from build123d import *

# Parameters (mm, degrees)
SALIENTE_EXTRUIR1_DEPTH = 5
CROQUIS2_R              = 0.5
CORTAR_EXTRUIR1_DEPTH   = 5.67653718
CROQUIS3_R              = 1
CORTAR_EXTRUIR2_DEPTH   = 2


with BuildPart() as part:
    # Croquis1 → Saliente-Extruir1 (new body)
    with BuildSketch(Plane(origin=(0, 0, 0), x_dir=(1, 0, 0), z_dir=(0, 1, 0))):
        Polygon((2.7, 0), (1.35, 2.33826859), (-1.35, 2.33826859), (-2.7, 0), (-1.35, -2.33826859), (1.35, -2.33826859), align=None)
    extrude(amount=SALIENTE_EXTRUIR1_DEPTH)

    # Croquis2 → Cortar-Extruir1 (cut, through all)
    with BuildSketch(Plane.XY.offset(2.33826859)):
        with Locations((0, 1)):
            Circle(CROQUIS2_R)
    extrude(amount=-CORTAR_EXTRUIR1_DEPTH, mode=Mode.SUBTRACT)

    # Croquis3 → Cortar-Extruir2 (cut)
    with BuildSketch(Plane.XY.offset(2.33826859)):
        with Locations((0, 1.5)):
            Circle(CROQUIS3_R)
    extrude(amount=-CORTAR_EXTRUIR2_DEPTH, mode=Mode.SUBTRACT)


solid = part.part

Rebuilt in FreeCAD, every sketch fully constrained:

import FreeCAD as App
import Part
import Sketcher
from FreeCAD import Vector
Q = App.Units.Quantity


def add_polygon(sketch, points):
    """Adds a closed chain of lines whose ends are joined by coincident constraints."""
    first, n = sketch.GeometryCount, len(points)
    for a, b in zip(points, points[1:] + points[:1]):
        sketch.addGeometry(Part.LineSegment(App.Vector(*a, 0), App.Vector(*b, 0)), False)
    for i in range(n):
        sketch.addConstraint(Sketcher.Constraint("Coincident", first + i, 2, first + (i + 1) % n, 1))

doc = App.newDocument("Part")
params = doc.addObject("Spreadsheet::Sheet", "Params")
for row, (alias, value) in enumerate([
    ("sketch1_width", "2.7 mm"),
    ("sketch1_length", "2.7 mm"),
    ("pad1_length", "5 mm"),
    ("sketch2_diameter", "1 mm"),
    ("sketch3_diameter", "2 mm"),
    ("pocket2_length", "2 mm"),
], start=1):
    params.set(f"A{row}", alias)
    params.set(f"B{row}", "=" + value)
    params.setAlias(f"B{row}", alias)

body = doc.addObject("PartDesign::Body", "Body")

sketch1 = body.newObject("Sketcher::SketchObject", "Sketch")
sketch1.AttachmentSupport = (doc.getObject("XZ_Plane"), [""])
sketch1.MapMode = "FlatFace"
add_polygon(sketch1, [(2.7, 0), (1.4, -2.3), (-1.4, -2.3), (-2.7, 0), (-1.4, 2.3), (1.4, 2.3)])
sketch1.addConstraint(Sketcher.Constraint("Horizontal", 1))
sketch1.addConstraint(Sketcher.Constraint("Horizontal", 4))
sketch1.addConstraint(Sketcher.Constraint("Symmetric", 0, 2, 3, 2, -1, 1))
sketch1.addConstraint(Sketcher.Constraint("Symmetric", 2, 2, 5, 2, -1, 1))
sketch1.addConstraint(Sketcher.Constraint("PointOnObject", 2, 2, -1))
sketch1.addConstraint(Sketcher.Constraint("Parallel", 2, 5))
sketch1.addConstraint(Sketcher.Constraint("Vertical", 1, 2, 3, 2))
sketch1.addConstraint(Sketcher.Constraint("Angle", 0, Q("-120 deg")))
sketch1.addConstraint(Sketcher.Constraint("DistanceX", 1, 2, 1, 1, Q("2.7 mm")))
sketch1.addConstraint(Sketcher.Constraint("Distance", 0, Q("2.7 mm")))
sketch1.setExpression("Constraints[14]", "Params.sketch1_width")
sketch1.setExpression("Constraints[15]", "Params.sketch1_length")
pad1 = body.newObject("PartDesign::Pad", "Pad")
pad1.Profile = sketch1
pad1.setExpression("Length", "Params.pad1_length")
pad1.Reversed = True

sketch2 = body.newObject("Sketcher::SketchObject", "Sketch001")
sketch2.AttachmentSupport = (doc.getObject("XY_Plane"), [""])
sketch2.MapMode = "FlatFace"
sketch2.AttachmentOffset = App.Placement(Vector(0, 0, 2.338269), App.Rotation())
sketch2.addGeometry(Part.Circle(Vector(0, 1, 0), Vector(0, 0, 1), 0.5), False)
sketch2.addConstraint(Sketcher.Constraint("PointOnObject", 0, 3, -2))
sketch2.addConstraint(Sketcher.Constraint("Diameter", 0, Q("1 mm")))
sketch2.addConstraint(Sketcher.Constraint("DistanceY", -1, 1, 0, 3, Q("1 mm")))
sketch2.setExpression("Constraints[1]", "Params.sketch2_diameter")
pocket1 = body.newObject("PartDesign::Pocket", "Pocket")
pocket1.Profile = sketch2
pocket1.Type = "ThroughAll"

sketch3 = body.newObject("Sketcher::SketchObject", "Sketch002")
sketch3.AttachmentSupport = (doc.getObject("XY_Plane"), [""])
sketch3.MapMode = "FlatFace"
sketch3.AttachmentOffset = App.Placement(Vector(0, 0, 2.338269), App.Rotation())
sketch3.addGeometry(Part.Circle(Vector(0, 1.5, 0), Vector(0, 0, 1), 1), False)
sketch3.addConstraint(Sketcher.Constraint("PointOnObject", 0, 3, -2))
sketch3.addConstraint(Sketcher.Constraint("Diameter", 0, Q("2 mm")))
sketch3.addConstraint(Sketcher.Constraint("DistanceY", -1, 1, 0, 3, Q("1.5 mm")))
sketch3.setExpression("Constraints[1]", "Params.sketch3_diameter")
pocket2 = body.newObject("PartDesign::Pocket", "Pocket001")
pocket2.Profile = sketch3
pocket2.setExpression("Length", "Params.pocket2_length")

doc.recompute()
